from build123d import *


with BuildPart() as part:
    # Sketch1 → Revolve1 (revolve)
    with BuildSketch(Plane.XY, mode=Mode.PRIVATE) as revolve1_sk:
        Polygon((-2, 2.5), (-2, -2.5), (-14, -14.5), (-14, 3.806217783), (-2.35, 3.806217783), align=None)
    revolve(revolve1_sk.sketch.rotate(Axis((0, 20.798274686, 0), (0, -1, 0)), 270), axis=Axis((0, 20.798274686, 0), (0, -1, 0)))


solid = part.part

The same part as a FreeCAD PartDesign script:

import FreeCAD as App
import Part
import Sketcher

V = App.Vector
Q = App.Units.Quantity


def add_polygon(sketch, points):
    """Adds a closed chain of lines whose ends are joined by coincident constraints."""
    first, n = sketch.GeometryCount, len(points)
    for a, b in zip(points, points[1:] + points[:1]):
        sketch.addGeometry(Part.LineSegment(App.Vector(*a, 0), App.Vector(*b, 0)), False)
    for i in range(n):
        sketch.addConstraint(Sketcher.Constraint("Coincident", first + i, 2, first + (i + 1) % n, 1))

doc = App.newDocument("Part")
params = doc.addObject("Spreadsheet::Sheet", "Params")
for row, (alias, value) in enumerate([
    ("sketch1_height", "5 mm"),
    ("sketch1_width", "11.65 mm"),
    ("revolution_angle", "360 deg"),
], start=1):
    params.set(f"A{row}", alias)
    params.set(f"B{row}", "=" + value)
    params.setAlias(f"B{row}", alias)

body = doc.addObject("PartDesign::Body", "Body")

# Sketch on XY plane
sketch1 = doc.addObject("Sketcher::SketchObject", "Sketch")
body.addObject(sketch1)
sketch1.AttachmentSupport = (doc.XY_Plane, [""])
sketch1.MapMode = "FlatFace"
add_polygon(sketch1, [(-2, -2.5), (-2, 2.5), (-2.4, 3.8), (-14, 3.8), (-14, -14.5)])  # lines 0-4
sketch1.addConstraint([
    Sketcher.Constraint("Vertical", 0),
    Sketcher.Constraint("Horizontal", 2),
    Sketcher.Constraint("Vertical", 3),
    Sketcher.Constraint("DistanceY", 0, 1, 0, 2, 5.0),
    Sketcher.Constraint("Angle", 1, Q("105 deg")),
    Sketcher.Constraint("Angle", 4, Q("45 deg")),
    Sketcher.Constraint("DistanceX", 0, 2, -1, 1, 2.0),
    Sketcher.Constraint("DistanceX", 2, 2, -1, 1, 14.0),
    Sketcher.Constraint("DistanceX", 2, 2, 2, 1, 11.65),
    Sketcher.Constraint("DistanceY", -1, 1, 0, 2, 2.5),
])
sketch1.setExpression("Constraints[8]", "Params.sketch1_height")
sketch1.setExpression("Constraints[13]", "Params.sketch1_width")
revolution = doc.addObject("PartDesign::Revolution", "Revolution")
body.addObject(revolution)
revolution.Profile = sketch1
revolution.ReferenceAxis = (sketch1, ["V_Axis"])
revolution.setExpression("Angle", "Params.revolution_angle")

doc.recompute()
